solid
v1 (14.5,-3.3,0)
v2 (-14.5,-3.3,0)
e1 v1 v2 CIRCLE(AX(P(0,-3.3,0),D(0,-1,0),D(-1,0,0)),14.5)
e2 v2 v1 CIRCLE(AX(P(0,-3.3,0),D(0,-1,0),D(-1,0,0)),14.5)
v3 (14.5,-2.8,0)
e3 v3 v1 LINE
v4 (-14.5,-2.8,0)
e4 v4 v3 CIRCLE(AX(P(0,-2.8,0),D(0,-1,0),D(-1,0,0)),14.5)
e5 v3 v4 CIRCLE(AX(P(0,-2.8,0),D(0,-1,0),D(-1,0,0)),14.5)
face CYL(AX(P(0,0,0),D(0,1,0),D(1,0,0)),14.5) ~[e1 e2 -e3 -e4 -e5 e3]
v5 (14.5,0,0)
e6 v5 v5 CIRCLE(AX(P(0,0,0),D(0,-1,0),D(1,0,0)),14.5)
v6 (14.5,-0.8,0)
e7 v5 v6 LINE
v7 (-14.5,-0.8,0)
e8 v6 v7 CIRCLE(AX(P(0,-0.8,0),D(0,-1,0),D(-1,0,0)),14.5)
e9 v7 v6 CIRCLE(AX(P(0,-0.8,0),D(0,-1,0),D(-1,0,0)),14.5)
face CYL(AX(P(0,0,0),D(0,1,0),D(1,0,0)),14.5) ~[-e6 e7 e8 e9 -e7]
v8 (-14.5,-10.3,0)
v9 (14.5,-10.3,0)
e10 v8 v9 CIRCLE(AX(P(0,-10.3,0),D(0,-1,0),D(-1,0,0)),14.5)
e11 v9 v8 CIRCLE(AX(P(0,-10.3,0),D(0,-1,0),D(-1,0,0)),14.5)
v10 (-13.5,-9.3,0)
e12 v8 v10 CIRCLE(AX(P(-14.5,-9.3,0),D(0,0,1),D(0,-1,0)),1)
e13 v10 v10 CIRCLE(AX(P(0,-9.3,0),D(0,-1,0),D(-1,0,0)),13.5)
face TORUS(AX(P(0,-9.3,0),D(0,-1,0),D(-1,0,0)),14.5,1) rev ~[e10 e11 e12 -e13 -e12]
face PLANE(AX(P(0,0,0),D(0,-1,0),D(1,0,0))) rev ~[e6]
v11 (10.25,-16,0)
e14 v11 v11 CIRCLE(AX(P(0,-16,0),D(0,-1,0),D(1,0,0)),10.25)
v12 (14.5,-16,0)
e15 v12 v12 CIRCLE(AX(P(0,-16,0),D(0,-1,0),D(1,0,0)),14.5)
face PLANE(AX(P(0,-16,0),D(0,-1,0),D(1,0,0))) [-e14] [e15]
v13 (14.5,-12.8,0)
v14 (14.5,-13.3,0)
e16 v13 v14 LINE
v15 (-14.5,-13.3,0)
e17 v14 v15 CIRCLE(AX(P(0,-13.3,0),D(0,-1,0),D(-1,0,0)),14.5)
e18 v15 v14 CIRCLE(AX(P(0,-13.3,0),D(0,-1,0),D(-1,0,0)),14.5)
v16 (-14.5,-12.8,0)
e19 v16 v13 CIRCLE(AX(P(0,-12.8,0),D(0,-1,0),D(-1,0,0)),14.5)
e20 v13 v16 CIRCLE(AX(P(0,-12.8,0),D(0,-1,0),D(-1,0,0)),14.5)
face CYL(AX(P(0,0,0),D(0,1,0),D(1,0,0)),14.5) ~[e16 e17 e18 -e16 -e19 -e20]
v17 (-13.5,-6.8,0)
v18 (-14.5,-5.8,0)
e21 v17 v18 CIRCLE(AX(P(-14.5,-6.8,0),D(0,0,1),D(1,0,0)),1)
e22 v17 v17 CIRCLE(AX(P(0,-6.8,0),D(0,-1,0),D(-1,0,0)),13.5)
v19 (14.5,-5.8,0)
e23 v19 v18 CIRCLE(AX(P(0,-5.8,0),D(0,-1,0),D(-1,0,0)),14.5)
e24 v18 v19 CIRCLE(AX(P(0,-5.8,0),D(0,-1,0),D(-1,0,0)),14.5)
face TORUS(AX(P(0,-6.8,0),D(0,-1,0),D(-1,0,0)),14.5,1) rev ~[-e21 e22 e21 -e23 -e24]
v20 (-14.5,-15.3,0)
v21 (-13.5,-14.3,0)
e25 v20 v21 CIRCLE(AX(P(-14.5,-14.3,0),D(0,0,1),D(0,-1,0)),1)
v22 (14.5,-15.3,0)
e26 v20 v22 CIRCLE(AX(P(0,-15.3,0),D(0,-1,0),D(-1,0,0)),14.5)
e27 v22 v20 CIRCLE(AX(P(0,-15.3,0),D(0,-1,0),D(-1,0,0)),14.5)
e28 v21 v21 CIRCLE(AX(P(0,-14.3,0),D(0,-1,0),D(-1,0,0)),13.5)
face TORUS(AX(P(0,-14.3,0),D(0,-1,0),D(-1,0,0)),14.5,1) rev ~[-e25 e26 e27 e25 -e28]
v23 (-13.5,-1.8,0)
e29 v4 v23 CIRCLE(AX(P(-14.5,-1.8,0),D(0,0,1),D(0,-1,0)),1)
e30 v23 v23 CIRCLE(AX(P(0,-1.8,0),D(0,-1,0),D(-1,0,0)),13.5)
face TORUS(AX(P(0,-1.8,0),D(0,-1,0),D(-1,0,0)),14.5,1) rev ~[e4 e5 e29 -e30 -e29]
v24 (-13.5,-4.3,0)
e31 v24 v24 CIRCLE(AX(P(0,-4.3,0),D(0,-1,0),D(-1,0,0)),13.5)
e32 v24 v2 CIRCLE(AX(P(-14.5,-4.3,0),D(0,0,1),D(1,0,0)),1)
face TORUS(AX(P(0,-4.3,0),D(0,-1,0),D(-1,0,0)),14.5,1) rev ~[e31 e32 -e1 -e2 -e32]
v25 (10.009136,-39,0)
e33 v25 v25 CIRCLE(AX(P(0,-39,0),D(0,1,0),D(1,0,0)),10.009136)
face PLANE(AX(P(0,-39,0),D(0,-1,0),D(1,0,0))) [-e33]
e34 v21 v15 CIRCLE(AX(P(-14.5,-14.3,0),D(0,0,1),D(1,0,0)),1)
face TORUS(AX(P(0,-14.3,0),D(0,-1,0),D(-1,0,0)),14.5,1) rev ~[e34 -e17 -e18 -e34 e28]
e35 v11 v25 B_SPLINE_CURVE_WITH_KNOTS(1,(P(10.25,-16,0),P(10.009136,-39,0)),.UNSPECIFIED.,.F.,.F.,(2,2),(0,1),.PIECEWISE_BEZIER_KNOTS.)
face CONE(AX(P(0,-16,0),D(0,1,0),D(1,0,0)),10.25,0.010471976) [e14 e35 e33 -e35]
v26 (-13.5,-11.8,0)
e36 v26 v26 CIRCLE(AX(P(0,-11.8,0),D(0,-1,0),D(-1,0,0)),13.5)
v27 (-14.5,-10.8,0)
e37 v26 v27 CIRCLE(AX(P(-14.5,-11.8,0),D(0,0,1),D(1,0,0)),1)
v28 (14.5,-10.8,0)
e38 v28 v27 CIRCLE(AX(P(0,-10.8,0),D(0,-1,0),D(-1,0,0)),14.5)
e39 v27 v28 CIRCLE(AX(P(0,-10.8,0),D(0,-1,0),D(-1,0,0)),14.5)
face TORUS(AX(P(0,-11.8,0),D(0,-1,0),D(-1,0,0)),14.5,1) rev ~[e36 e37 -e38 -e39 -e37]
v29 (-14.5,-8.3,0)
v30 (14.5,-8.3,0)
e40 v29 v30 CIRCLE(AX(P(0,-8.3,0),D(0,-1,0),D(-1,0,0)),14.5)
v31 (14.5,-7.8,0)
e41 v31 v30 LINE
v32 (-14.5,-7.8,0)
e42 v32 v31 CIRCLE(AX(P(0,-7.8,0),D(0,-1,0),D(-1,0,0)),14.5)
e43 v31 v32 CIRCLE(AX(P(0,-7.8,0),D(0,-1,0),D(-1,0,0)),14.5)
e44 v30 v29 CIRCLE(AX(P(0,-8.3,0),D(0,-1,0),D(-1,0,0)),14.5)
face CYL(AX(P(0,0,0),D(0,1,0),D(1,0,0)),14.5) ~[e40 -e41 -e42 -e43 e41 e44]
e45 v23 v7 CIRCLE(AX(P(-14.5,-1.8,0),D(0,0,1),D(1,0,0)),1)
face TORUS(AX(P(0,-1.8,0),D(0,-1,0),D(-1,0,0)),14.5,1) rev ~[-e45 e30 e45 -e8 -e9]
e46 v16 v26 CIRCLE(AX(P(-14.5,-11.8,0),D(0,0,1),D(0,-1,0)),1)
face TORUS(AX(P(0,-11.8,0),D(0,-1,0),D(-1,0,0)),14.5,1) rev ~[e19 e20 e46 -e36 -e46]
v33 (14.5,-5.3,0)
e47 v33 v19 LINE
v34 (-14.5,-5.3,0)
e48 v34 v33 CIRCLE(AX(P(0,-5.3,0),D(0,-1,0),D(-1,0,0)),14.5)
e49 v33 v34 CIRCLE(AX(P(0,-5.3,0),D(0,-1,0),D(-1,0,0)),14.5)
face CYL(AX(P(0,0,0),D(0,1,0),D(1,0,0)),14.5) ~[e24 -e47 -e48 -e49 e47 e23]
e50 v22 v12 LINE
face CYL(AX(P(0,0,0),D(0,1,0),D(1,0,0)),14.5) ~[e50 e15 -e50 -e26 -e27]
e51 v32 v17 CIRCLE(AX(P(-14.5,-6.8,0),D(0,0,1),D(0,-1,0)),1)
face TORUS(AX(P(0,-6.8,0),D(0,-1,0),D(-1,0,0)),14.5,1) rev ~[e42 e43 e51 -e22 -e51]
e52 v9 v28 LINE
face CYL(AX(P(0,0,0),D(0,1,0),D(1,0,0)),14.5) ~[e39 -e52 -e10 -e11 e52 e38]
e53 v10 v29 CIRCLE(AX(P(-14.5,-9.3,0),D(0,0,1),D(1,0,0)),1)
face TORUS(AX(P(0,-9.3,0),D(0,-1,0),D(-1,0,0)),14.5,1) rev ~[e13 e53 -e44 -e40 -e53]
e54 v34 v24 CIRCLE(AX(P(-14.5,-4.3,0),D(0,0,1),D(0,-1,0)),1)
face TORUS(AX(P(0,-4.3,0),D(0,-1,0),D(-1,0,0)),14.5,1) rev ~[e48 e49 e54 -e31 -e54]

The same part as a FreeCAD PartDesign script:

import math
import FreeCAD as App
import Part
import Sketcher
from FreeCAD import Vector

doc = App.newDocument("Part")
params = doc.addObject("Spreadsheet::Sheet", "Params")
for row, (alias, value) in enumerate([
    ("sketch1_diameter", "29 mm"),
    ("pad1_length", "16 mm"),
    ("sketch2_diameter", "20.5 mm"),
    ("pad2_length", "23 mm"),
    ("pad2_taper", "-0.6 deg"),
    ("sketch3_radius", "1 mm"),
    ("groove_angle", "360 deg"),
], start=1):
    params.set(f"A{row}", alias)
    params.set(f"B{row}", "=" + value)
    params.setAlias(f"B{row}", alias)

body = doc.addObject("PartDesign::Body", "Body")

# Sketch on XZ plane
sketch1 = body.newObject("Sketcher::SketchObject", "Sketch")
sketch1.AttachmentSupport = (doc.getObject("XZ_Plane"), [""])
sketch1.MapMode = "FlatFace"
sketch1.addGeometry(Part.Circle(Vector(0, 0, 0), Vector(0, 0, 1), 14), False)
sketch1.addConstraint([
    Sketcher.Constraint("Coincident", 0, 3, -1, 1),
    Sketcher.Constraint("Diameter", 0, 29.0),
])
sketch1.setExpression("Constraints[1]", "Params.sketch1_diameter")
pad1 = body.newObject("PartDesign::Pad", "Pad")
pad1.Profile = sketch1
pad1.setExpression("Length", "Params.pad1_length")

# Sketch on XZ plane
sketch2 = body.newObject("Sketcher::SketchObject", "Sketch001")
sketch2.AttachmentSupport = (doc.getObject("XZ_Plane"), [""])
sketch2.MapMode = "FlatFace"
sketch2.AttachmentOffset = App.Placement(Vector(0, 0, 16), App.Rotation())
sketch2.addGeometry(Part.Circle(Vector(0, 0, 0), Vector(0, 0, 1), 10), False)
sketch2.addConstraint([
    Sketcher.Constraint("Coincident", 0, 3, -1, 1),
    Sketcher.Constraint("Diameter", 0, 20.5),
])
sketch2.setExpression("Constraints[1]", "Params.sketch2_diameter")
pad2 = body.newObject("PartDesign::Pad", "Pad001")
pad2.Profile = sketch2
pad2.setExpression("Length", "Params.pad2_length")
pad2.setExpression("TaperAngle", "Params.pad2_taper")

# Sketch on XY plane
sketch3 = body.newObject("Sketcher::SketchObject", "Sketch002")
sketch3.AttachmentSupport = (doc.getObject("XY_Plane"), [""])
sketch3.MapMode = "FlatFace"
sketch3.addGeometry([
    Part.ArcOfCircle(Part.Circle(Vector(-14.5, -1.8, 0), Vector(0, 0, 1), 1), math.radians(0), math.radians(90)),  # 0
    Part.ArcOfCircle(Part.Circle(Vector(-14.5, -1.8, 0), Vector(0, 0, 1), 1), math.radians(90), math.radians(270)),  # 1
    Part.ArcOfCircle(Part.Circle(Vector(-14.5, -1.8, 0), Vector(0, 0, 1), 1), math.radians(-90), math.radians(0)),  # 2
    Part.ArcOfCircle(Part.Circle(Vector(-14.5, -14.3, 0), Vector(0, 0, 1), 1), math.radians(0), math.radians(90)),  # 3
    Part.ArcOfCircle(Part.Circle(Vector(-14.5, -14.3, 0), Vector(0, 0, 1), 1), math.radians(90), math.radians(270)),  # 4
    Part.ArcOfCircle(Part.Circle(Vector(-14.5, -14.3, 0), Vector(0, 0, 1), 1), math.radians(-90), math.radians(0)),  # 5
    Part.ArcOfCircle(Part.Circle(Vector(-14.5, -11.8, 0), Vector(0, 0, 1), 1), math.radians(0), math.radians(90)),  # 6
    Part.ArcOfCircle(Part.Circle(Vector(-14.5, -11.8, 0), Vector(0, 0, 1), 1), math.radians(90), math.radians(270)),  # 7
    Part.ArcOfCircle(Part.Circle(Vector(-14.5, -11.8, 0), Vector(0, 0, 1), 1), math.radians(-90), math.radians(0)),  # 8
    Part.ArcOfCircle(Part.Circle(Vector(-14.5, -9.3, 0), Vector(0, 0, 1), 1), math.radians(0), math.radians(90)),  # 9
    Part.ArcOfCircle(Part.Circle(Vector(-14.5, -9.3, 0), Vector(0, 0, 1), 1), math.radians(90), math.radians(270)),  # 10
    Part.ArcOfCircle(Part.Circle(Vector(-14.5, -9.3, 0), Vector(0, 0, 1), 1), math.radians(-90), math.radians(0)),  # 11
    Part.ArcOfCircle(Part.Circle(Vector(-14.5, -6.8, 0), Vector(0, 0, 1), 1), math.radians(0), math.radians(90)),  # 12
    Part.ArcOfCircle(Part.Circle(Vector(-14.5, -6.8, 0), Vector(0, 0, 1), 1), math.radians(90), math.radians(270)),  # 13
    Part.ArcOfCircle(Part.Circle(Vector(-14.5, -6.8, 0), Vector(0, 0, 1), 1), math.radians(-90), math.radians(0)),  # 14
    Part.ArcOfCircle(Part.Circle(Vector(-14.5, -4.3, 0), Vector(0, 0, 1), 1), math.radians(0), math.radians(90)),  # 15
    Part.ArcOfCircle(Part.Circle(Vector(-14.5, -4.3, 0), Vector(0, 0, 1), 1), math.radians(90), math.radians(270)),  # 16
    Part.ArcOfCircle(Part.Circle(Vector(-14.5, -4.3, 0), Vector(0, 0, 1), 1), math.radians(-90), math.radians(0)),  # 17
], False)
sketch3.addConstraint([
    Sketcher.Constraint("Tangent", 0, 2, 1, 1),
    Sketcher.Constraint("Tangent", 1, 2, 2, 1),
    Sketcher.Constraint("Tangent", 2, 2, 0, 1),
    Sketcher.Constraint("Tangent", 3, 2, 4, 1),
    Sketcher.Constraint("Tangent", 4, 2, 5, 1),
    Sketcher.Constraint("Tangent", 5, 2, 3, 1),
    Sketcher.Constraint("Tangent", 6, 2, 7, 1),
    Sketcher.Constraint("Tangent", 7, 2, 8, 1),
    Sketcher.Constraint("Tangent", 8, 2, 6, 1),
    Sketcher.Constraint("Tangent", 9, 2, 10, 1),
    Sketcher.Constraint("Tangent", 10, 2, 11, 1),
    Sketcher.Constraint("Tangent", 11, 2, 9, 1),
    Sketcher.Constraint("Tangent", 12, 2, 13, 1),
    Sketcher.Constraint("Tangent", 13, 2, 14, 1),
    Sketcher.Constraint("Tangent", 14, 2, 12, 1),
    Sketcher.Constraint("Tangent", 15, 2, 16, 1),
    Sketcher.Constraint("Tangent", 16, 2, 17, 1),
    Sketcher.Constraint("Tangent", 17, 2, 15, 1),
    Sketcher.Constraint("Equal", 2, 3),
    Sketcher.Constraint("Equal", 5, 6),
    Sketcher.Constraint("Equal", 8, 9),
    Sketcher.Constraint("Equal", 11, 12),
    Sketcher.Constraint("Equal", 14, 15),
    Sketcher.Constraint("Horizontal", 1, 3, 2, 2),
    Sketcher.Constraint("Horizontal", 4, 3, 5, 2),
    Sketcher.Constraint("Horizontal", 7, 3, 8, 2),
    Sketcher.Constraint("Horizontal", 10, 3, 11, 2),
    Sketcher.Constraint("Horizontal", 13, 3, 14, 2),
    Sketcher.Constraint("Horizontal", 16, 3, 17, 2),
    Sketcher.Constraint("Vertical", 2, 3, 3, 3),
    Sketcher.Constraint("Vertical", 5, 3, 6, 3),
    Sketcher.Constraint("Vertical", 8, 3, 9, 3),
    Sketcher.Constraint("Vertical", 11, 3, 12, 3),
    Sketcher.Constraint("Vertical", 14, 3, 15, 3),
    Sketcher.Constraint("Vertical", 17, 3, 0, 2),
    Sketcher.Constraint("Vertical", 0, 2, 1, 2),
    Sketcher.Constraint("Vertical", 1, 2, 3, 2),
    Sketcher.Constraint("Vertical", 3, 2, 4, 2),
    Sketcher.Constraint("Vertical", 4, 2, 6, 2),
    Sketcher.Constraint("Vertical", 6, 2, 7, 2),
    Sketcher.Constraint("Vertical", 7, 2, 9, 2),
    Sketcher.Constraint("Vertical", 9, 2, 10, 2),
    Sketcher.Constraint("Vertical", 10, 2, 12, 2),
    Sketcher.Constraint("Vertical", 12, 2, 13, 2),
    Sketcher.Constraint("Vertical", 13, 2, 15, 2),
    Sketcher.Constraint("Vertical", 15, 2, 16, 2),
    Sketcher.Constraint("Radius", 0, 1.0),
    Sketcher.Constraint("DistanceY", 6, 3, 0, 3, 10.0),
    Sketcher.Constraint("DistanceY", 3, 3, 9, 3, 5.0),
    Sketcher.Constraint("DistanceY", 12, 3, 0, 3, 5.0),
    Sketcher.Constraint("DistanceX", 0, 3, -1, 1, 14.5),
    Sketcher.Constraint("DistanceY", 0, 3, -1, 1, 1.8),
    Sketcher.Constraint("DistanceY", 3, 3, -1, 1, 14.3),
    Sketcher.Constraint("DistanceY", 15, 3, -1, 1, 4.3),
])
sketch3.setExpression("Constraints[46]", "Params.sketch3_radius")
groove = body.newObject("PartDesign::Groove", "Groove")
groove.Profile = sketch3
groove.ReferenceAxis = (sketch3, ["V_Axis"])
groove.setExpression("Angle", "Params.groove_angle")

doc.recompute()
